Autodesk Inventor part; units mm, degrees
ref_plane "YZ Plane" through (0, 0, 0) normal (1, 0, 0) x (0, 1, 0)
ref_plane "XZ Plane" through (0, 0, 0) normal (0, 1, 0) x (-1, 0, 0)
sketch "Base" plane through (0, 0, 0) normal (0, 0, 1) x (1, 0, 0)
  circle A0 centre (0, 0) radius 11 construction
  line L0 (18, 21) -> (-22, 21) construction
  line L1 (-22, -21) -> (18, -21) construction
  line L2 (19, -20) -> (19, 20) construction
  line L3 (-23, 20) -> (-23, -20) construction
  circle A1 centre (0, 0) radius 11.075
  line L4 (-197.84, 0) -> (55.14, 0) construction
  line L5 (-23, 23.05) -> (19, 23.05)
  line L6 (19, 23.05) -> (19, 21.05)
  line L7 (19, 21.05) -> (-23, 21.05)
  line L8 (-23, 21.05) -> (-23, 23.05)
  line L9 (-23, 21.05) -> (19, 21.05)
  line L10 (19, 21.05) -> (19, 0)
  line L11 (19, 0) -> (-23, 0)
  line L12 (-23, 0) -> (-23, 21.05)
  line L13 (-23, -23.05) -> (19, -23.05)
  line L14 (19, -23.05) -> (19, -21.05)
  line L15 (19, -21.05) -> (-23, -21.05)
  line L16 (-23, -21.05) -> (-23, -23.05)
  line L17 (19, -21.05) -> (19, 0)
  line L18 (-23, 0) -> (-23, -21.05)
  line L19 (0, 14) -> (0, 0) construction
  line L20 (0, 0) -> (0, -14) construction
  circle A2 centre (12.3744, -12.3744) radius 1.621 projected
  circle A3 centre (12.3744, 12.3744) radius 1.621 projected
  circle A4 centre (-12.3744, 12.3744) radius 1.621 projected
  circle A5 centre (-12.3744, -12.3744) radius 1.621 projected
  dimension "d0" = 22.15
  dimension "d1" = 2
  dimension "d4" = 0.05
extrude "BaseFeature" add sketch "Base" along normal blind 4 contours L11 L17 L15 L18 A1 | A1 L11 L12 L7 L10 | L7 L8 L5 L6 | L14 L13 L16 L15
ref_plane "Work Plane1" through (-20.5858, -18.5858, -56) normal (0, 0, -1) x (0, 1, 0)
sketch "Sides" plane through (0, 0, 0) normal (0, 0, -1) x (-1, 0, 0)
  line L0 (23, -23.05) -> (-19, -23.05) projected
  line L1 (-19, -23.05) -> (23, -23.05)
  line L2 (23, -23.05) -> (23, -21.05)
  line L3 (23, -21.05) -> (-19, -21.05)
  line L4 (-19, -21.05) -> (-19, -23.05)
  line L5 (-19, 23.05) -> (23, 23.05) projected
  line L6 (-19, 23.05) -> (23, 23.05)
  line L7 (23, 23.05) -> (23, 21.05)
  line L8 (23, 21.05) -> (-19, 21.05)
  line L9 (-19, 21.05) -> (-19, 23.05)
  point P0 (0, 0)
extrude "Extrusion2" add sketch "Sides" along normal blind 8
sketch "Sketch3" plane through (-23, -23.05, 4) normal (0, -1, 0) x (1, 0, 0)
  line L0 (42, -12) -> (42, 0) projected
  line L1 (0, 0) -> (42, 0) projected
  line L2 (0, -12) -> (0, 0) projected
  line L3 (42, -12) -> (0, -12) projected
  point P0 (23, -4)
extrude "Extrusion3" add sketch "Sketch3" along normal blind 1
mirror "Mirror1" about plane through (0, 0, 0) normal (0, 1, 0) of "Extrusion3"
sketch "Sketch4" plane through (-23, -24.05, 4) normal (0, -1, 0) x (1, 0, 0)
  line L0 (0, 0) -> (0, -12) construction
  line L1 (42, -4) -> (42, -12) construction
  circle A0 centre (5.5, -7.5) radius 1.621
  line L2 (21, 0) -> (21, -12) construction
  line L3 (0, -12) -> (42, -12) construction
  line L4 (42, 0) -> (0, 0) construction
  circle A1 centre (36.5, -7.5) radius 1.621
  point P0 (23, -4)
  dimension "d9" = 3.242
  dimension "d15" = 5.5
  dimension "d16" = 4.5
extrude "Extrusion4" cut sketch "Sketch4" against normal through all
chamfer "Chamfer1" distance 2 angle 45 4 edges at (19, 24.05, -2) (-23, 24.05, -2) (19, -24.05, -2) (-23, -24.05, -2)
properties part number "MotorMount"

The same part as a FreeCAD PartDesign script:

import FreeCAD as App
import Part
import Sketcher

V = App.Vector
Q = App.Units.Quantity


def edges_at(feature, points):
    """Names of the edges that pass closest to the given points."""
    edges = feature.Shape.Edges
    near = lambda p: min(range(len(edges)), key=lambda i: edges[i].distToShape(Part.Vertex(*p))[0])
    return sorted({f"Edge{near(p) + 1}" for p in points})


def add_polygon(sketch, points):
    """Adds a closed chain of lines whose ends are joined by coincident constraints."""
    first, n = sketch.GeometryCount, len(points)
    for a, b in zip(points, points[1:] + points[:1]):
        sketch.addGeometry(Part.LineSegment(App.Vector(*a, 0), App.Vector(*b, 0)), False)
    for i in range(n):
        sketch.addConstraint(Sketcher.Constraint("Coincident", first + i, 2, first + (i + 1) % n, 1))

doc = App.newDocument("Part")
body = doc.addObject("PartDesign::Body", "Body")

# Sketch on XY plane
sketch1 = body.newObject("Sketcher::SketchObject", "Sketch")
sketch1.AttachmentSupport = (doc.getObject("XY_Plane"), [""])
sketch1.MapMode = "FlatFace"
add_polygon(sketch1, [(19, 23.05), (-23, 23.05), (-23, -23.05), (19, -23.05)])  # lines 0-3
sketch1.addGeometry(Part.Circle(V(0, 0, 0), V(0, 0, 1), 11.075), False)  # 4
sketch1.addGeometry(Part.Circle(V(-12.3744, -12.3744, 0), V(0, 0, 1), 1.621), False)  # 5
sketch1.addGeometry(Part.Circle(V(12.3744, -12.3744, 0), V(0, 0, 1), 1.621), False)  # 6
sketch1.addGeometry(Part.Circle(V(-12.3744, 12.3744, 0), V(0, 0, 1), 1.621), False)  # 7
sketch1.addGeometry(Part.Circle(V(12.3744, 12.3744, 0), V(0, 0, 1), 1.621), False)  # 8
sketch1.addConstraint(Sketcher.Constraint("Horizontal", 0))
sketch1.addConstraint(Sketcher.Constraint("Vertical", 1))
sketch1.addConstraint(Sketcher.Constraint("Horizontal", 2))
sketch1.addConstraint(Sketcher.Constraint("Vertical", 3))
sketch1.addConstraint(Sketcher.Constraint("Coincident", 4, 3, -1, 1))
sketch1.addConstraint(Sketcher.Constraint("Equal", 5, 6))
sketch1.addConstraint(Sketcher.Constraint("Equal", 6, 7))
sketch1.addConstraint(Sketcher.Constraint("Equal", 7, 8))
sketch1.addConstraint(Sketcher.Constraint("Symmetric", 6, 3, 7, 3, -1, 1))
sketch1.addConstraint(Sketcher.Constraint("Symmetric", 5, 3, 8, 3, -1, 1))
sketch1.addConstraint(Sketcher.Constraint("Symmetric", 5, 3, 6, 3, -2))
sketch1.addConstraint(Sketcher.Constraint("Diameter", 4, Q("22.15 mm")))
sketch1.addConstraint(Sketcher.Constraint("DistanceX", 0, 2, 0, 1, Q("42 mm")))
sketch1.addConstraint(Sketcher.Constraint("Diameter", 5, Q("3.242 mm")))
sketch1.addConstraint(Sketcher.Constraint("DistanceY", 1, 2, 1, 1, Q("46.1 mm")))
sketch1.addConstraint(Sketcher.Constraint("DistanceX", 0, 2, -1, 1, Q("23 mm")))
sketch1.addConstraint(Sketcher.Constraint("DistanceY", -1, 1, 0, 2, Q("23.05 mm")))
sketch1.addConstraint(Sketcher.Constraint("DistanceX", 5, 3, -1, 1, Q("12.3744 mm")))
sketch1.addConstraint(Sketcher.Constraint("DistanceY", 5, 3, -1, 1, Q("12.3744 mm")))
pad1 = body.newObject("PartDesign::Pad", "Pad")
pad1.Profile = sketch1
pad1.Length = 4

# Sketch on XY plane
sketch2 = body.newObject("Sketcher::SketchObject", "Sketch001")
sketch2.AttachmentSupport = (doc.getObject("XY_Plane"), [""])
sketch2.MapMode = "FlatFace"
add_polygon(sketch2, [(19, -23.05), (-23, -23.05), (-23, -21.05), (19, -21.05)])  # lines 0-3
add_polygon(sketch2, [(-23, 23.05), (19, 23.05), (19, 21.05), (-23, 21.05)])  # lines 4-7
sketch2.addConstraint(Sketcher.Constraint("Horizontal", 0))
sketch2.addConstraint(Sketcher.Constraint("Vertical", 1))
sketch2.addConstraint(Sketcher.Constraint("Horizontal", 2))
sketch2.addConstraint(Sketcher.Constraint("Vertical", 3))
sketch2.addConstraint(Sketcher.Constraint("Horizontal", 4))
sketch2.addConstraint(Sketcher.Constraint("Vertical", 5))
sketch2.addConstraint(Sketcher.Constraint("Horizontal", 6))
sketch2.addConstraint(Sketcher.Constraint("Vertical", 7))
sketch2.addConstraint(Sketcher.Constraint("Symmetric", 3, 2, 4, 2, -1))
sketch2.addConstraint(Sketcher.Constraint("Symmetric", 1, 2, 6, 2, -1))
sketch2.addConstraint(Sketcher.Constraint("DistanceX", 0, 2, 0, 1, Q("42 mm")))
sketch2.addConstraint(Sketcher.Constraint("DistanceY", 1, 1, 1, 2, Q("2 mm")))
sketch2.addConstraint(Sketcher.Constraint("DistanceX", 0, 2, -1, 1, Q("23 mm")))
sketch2.addConstraint(Sketcher.Constraint("DistanceY", 2, 2, 4, 2, Q("44.1 mm")))
pad2 = body.newObject("PartDesign::Pad", "Pad001")
pad2.Profile = sketch2
pad2.Length = 8
pad2.Reversed = True

# Sketch on XZ plane
sketch3 = body.newObject("Sketcher::SketchObject", "Sketch002")
sketch3.AttachmentSupport = (doc.getObject("XZ_Plane"), [""])
sketch3.MapMode = "FlatFace"
sketch3.AttachmentOffset = App.Placement(V(0, 0, 23.05), App.Rotation())
add_polygon(sketch3, [(-23, -8), (19, -8), (19, 4), (-23, 4)])  # lines 0-3
sketch3.addConstraint(Sketcher.Constraint("Horizontal", 0))
sketch3.addConstraint(Sketcher.Constraint("Vertical", 1))
sketch3.addConstraint(Sketcher.Constraint("Horizontal", 2))
sketch3.addConstraint(Sketcher.Constraint("Vertical", 3))
sketch3.addConstraint(Sketcher.Constraint("DistanceX", 0, 1, 0, 2, Q("42 mm")))
sketch3.addConstraint(Sketcher.Constraint("DistanceY", 1, 1, 1, 2, Q("12 mm")))
sketch3.addConstraint(Sketcher.Constraint("DistanceX", -1, 1, 0, 2, Q("19 mm")))
sketch3.addConstraint(Sketcher.Constraint("DistanceY", 0, 2, -1, 1, Q("8 mm")))
pad3 = body.newObject("PartDesign::Pad", "Pad002")
pad3.Profile = sketch3
pad3.Length = 1
doc.recompute()

mirrored = body.newObject("PartDesign::Mirrored", "Mirrored")
mirrored.Originals = [pad3]
mirrored.MirrorPlane = (doc.getObject("XZ_Plane"), [""])
body.Tip = mirrored

# Sketch on XZ plane
sketch4 = body.newObject("Sketcher::SketchObject", "Sketch003")
sketch4.AttachmentSupport = (doc.getObject("XZ_Plane"), [""])
sketch4.MapMode = "FlatFace"
sketch4.AttachmentOffset = App.Placement(V(0, 0, 24.05), App.Rotation())
sketch4.addGeometry(Part.Circle(V(-17.5, -3.5, 0), V(0, 0, 1), 1.621), False)
sketch4.addGeometry(Part.Circle(V(13.5, -3.5, 0), V(0, 0, 1), 1.621), False)
sketch4.addConstraint(Sketcher.Constraint("Equal", 0, 1))
sketch4.addConstraint(Sketcher.Constraint("Horizontal", 0, 3, 1, 3))
sketch4.addConstraint(Sketcher.Constraint("Diameter", 0, Q("3.242 mm")))
sketch4.addConstraint(Sketcher.Constraint("DistanceX", 0, 3, 1, 3, Q("31 mm")))
sketch4.addConstraint(Sketcher.Constraint("DistanceX", 0, 3, -1, 1, Q("17.5 mm")))
sketch4.addConstraint(Sketcher.Constraint("DistanceY", 0, 3, -1, 1, Q("3.5 mm")))
pocket1 = body.newObject("PartDesign::Pocket", "Pocket")
pocket1.Profile = sketch4
pocket1.Type = "ThroughAll"
doc.recompute()

chamfer = body.newObject("PartDesign::Chamfer", "Chamfer")
chamfer.Base = (pocket1, edges_at(pocket1, [
    (19, 24.05, -2),
    (-23, 24.05, -2),
    (19, -24.05, -2),
    (-23, -24.05, -2),
]))
chamfer.Size = 2

doc.recompute()
